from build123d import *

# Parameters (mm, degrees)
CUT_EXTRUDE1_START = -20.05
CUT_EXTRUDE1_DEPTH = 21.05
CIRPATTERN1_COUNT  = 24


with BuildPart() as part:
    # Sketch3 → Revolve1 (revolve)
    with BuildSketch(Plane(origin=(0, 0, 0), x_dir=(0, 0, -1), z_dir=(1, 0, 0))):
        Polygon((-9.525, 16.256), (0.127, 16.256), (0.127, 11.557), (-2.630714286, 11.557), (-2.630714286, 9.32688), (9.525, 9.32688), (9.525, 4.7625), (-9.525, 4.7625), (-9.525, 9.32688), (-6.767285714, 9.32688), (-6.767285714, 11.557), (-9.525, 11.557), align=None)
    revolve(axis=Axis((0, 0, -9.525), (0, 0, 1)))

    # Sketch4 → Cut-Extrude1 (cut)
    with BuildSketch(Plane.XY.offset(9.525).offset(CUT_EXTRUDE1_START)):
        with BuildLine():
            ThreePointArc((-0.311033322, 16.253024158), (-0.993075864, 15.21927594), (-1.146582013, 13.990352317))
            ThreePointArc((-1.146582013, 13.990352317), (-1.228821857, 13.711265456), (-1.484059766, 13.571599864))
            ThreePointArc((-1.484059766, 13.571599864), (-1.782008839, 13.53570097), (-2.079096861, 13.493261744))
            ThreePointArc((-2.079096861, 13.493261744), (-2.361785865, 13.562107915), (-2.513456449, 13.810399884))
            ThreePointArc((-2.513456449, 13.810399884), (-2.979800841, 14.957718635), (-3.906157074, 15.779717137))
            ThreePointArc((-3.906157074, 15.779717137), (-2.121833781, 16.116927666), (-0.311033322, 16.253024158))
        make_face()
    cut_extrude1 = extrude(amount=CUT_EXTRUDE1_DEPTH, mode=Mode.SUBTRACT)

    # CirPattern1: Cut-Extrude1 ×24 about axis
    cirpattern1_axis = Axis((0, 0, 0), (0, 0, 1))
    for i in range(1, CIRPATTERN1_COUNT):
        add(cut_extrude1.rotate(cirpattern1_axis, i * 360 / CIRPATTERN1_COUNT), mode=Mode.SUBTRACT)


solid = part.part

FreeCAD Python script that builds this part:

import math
import FreeCAD as App
import Part
import Sketcher
from FreeCAD import Vector
Q = App.Units.Quantity


def add_polygon(sketch, points):
    """Adds a closed chain of lines whose ends are joined by coincident constraints."""
    first, n = sketch.GeometryCount, len(points)
    for a, b in zip(points, points[1:] + points[:1]):
        sketch.addGeometry(Part.LineSegment(App.Vector(*a, 0), App.Vector(*b, 0)), False)
    for i in range(n):
        sketch.addConstraint(Sketcher.Constraint("Coincident", first + i, 2, first + (i + 1) % n, 1))

doc = App.newDocument("Part")
body = doc.addObject("PartDesign::Body", "Body")

# Sketch on YZ plane
sketch1 = body.newObject("Sketcher::SketchObject", "Sketch")
sketch1.AttachmentSupport = (doc.getObject("YZ_Plane"), [""])
sketch1.MapMode = "FlatFace"
add_polygon(sketch1, [(16.256, -0.127), (16.256, 9.525), (11.557, 9.525), (11.557, 6.767286), (9.32688, 6.767286), (9.32688, 9.525), (4.7625, 9.525), (4.7625, -9.525), (9.32688, -9.525), (9.32688, 2.630714), (11.557, 2.630714), (11.557, -0.127)])  # lines 0-11
sketch1.addConstraint(Sketcher.Constraint("Vertical", 0))
sketch1.addConstraint(Sketcher.Constraint("Horizontal", 1))
sketch1.addConstraint(Sketcher.Constraint("Vertical", 2))
sketch1.addConstraint(Sketcher.Constraint("Horizontal", 3))
sketch1.addConstraint(Sketcher.Constraint("Vertical", 4))
sketch1.addConstraint(Sketcher.Constraint("Horizontal", 5))
sketch1.addConstraint(Sketcher.Constraint("Vertical", 6))
sketch1.addConstraint(Sketcher.Constraint("Horizontal", 7))
sketch1.addConstraint(Sketcher.Constraint("Vertical", 8))
sketch1.addConstraint(Sketcher.Constraint("Horizontal", 9))
sketch1.addConstraint(Sketcher.Constraint("Vertical", 10))
sketch1.addConstraint(Sketcher.Constraint("Horizontal", 11))
sketch1.addConstraint(Sketcher.Constraint("Symmetric", 4, 2, 7, 2, -1))
sketch1.addConstraint(Sketcher.Constraint("Horizontal", 1, 2, 4, 2))
sketch1.addConstraint(Sketcher.Constraint("Vertical", 2, 2, 9, 2))
sketch1.addConstraint(Sketcher.Constraint("Equal", 4, 10))
sketch1.addConstraint(Sketcher.Constraint("DistanceY", 0, 1, 0, 2, Q("0.38 in")))
sketch1.addConstraint(Sketcher.Constraint("DistanceY", 6, 2, 6, 1, Q("0.75 in")))
sketch1.addConstraint(Sketcher.Constraint("DistanceX", 1, 2, 1, 1, Q("0.185 in")))
sketch1.addConstraint(Sketcher.Constraint("DistanceX", -1, 1, 0, 2, Q("0.64 in")))
sketch1.addConstraint(Sketcher.Constraint("DistanceX", 3, 2, 3, 1, Q("0.0878 in")))
sketch1.addConstraint(Sketcher.Constraint("DistanceX", 5, 2, 5, 1, Q("0.1797 in")))
sketch1.addConstraint(Sketcher.Constraint("DistanceY", 2, 2, 2, 1, Q("2.757714 mm")))
revolution = body.newObject("PartDesign::Revolution", "Revolution")
revolution.Profile = sketch1
revolution.ReferenceAxis = (sketch1, ["V_Axis"])
revolution.Angle = 360

# Sketch on XY plane
sketch2 = body.newObject("Sketcher::SketchObject", "Sketch001")
sketch2.AttachmentSupport = (doc.getObject("XY_Plane"), [""])
sketch2.MapMode = "FlatFace"
sketch2.AttachmentOffset = App.Placement(Vector(0, 0, -10.525), App.Rotation())
sketch2.addGeometry(Part.ArcOfCircle(Part.Circle(Vector(1.560691, 14.276233, 0), Vector(0, 0, 1), 2.722325), math.radians(133.436178), math.radians(186.027943)), False)
sketch2.addGeometry(Part.ArcOfCircle(Part.Circle(Vector(0, 0, 0), Vector(0, 0, 1), 16.256), math.radians(91.096333), math.radians(103.903667)), False)
sketch2.addGeometry(Part.ArcOfCircle(Part.Circle(Vector(-5.202473, 13.385846, 0), Vector(0, 0, 1), 2.722325), math.radians(8.972057), math.radians(61.563822)), False)
sketch2.addGeometry(Part.ArcOfCircle(Part.Circle(Vector(-2.137118, 13.869818, 0), Vector(0, 0, 1), 0.381), math.radians(-171.027942), math.radians(-81.240521)), False)
sketch2.addGeometry(Part.ArcOfCircle(Part.Circle(Vector(0, 0, 0), Vector(0, 0, 1), 13.6525), math.radians(96.240521), math.radians(98.759479)), False)
sketch2.addGeometry(Part.ArcOfCircle(Part.Circle(Vector(-1.525475, 13.950342, 0), Vector(0, 0, 1), 0.381), math.radians(-83.759479), math.radians(6.027942)), False)
sketch2.addConstraint(Sketcher.Constraint("Coincident", 0, 1, 1, 1))
sketch2.addConstraint(Sketcher.Constraint("Coincident", 1, 2, 2, 2))
sketch2.addConstraint(Sketcher.Constraint("Tangent", 2, 1, 3, 1))
sketch2.addConstraint(Sketcher.Constraint("Tangent", 3, 2, 4, 2))
sketch2.addConstraint(Sketcher.Constraint("Tangent", 4, 1, 5, 1))
sketch2.addConstraint(Sketcher.Constraint("Tangent", 5, 2, 0, 2))
sketch2.addConstraint(Sketcher.Constraint("Coincident", 1, 3, -1, 1))
sketch2.addConstraint(Sketcher.Constraint("Coincident", 4, 3, -1, 1))
sketch2.addConstraint(Sketcher.Constraint("Equal", 0, 2))
sketch2.addConstraint(Sketcher.Constraint("Equal", 3, 5))
sketch2.addConstraint(Sketcher.Constraint("Radius", 1, Q("0.64 in")))
sketch2.addConstraint(Sketcher.Constraint("Radius", 3, Q("0.015 in")))
sketch2.addConstraint(Sketcher.Constraint("Radius", 4, Q("0.5375 in")))
sketch2.addConstraint(Sketcher.Constraint("Radius", 0, Q("2.722325 mm")))
sketch2.addConstraint(Sketcher.Constraint("DistanceY", -1, 1, 2, 1, Q("13.8104 mm")))
sketch2.addConstraint(Sketcher.Constraint("DistanceY", -1, 1, 4, 1, Q("13.5716 mm")))
sketch2.addConstraint(Sketcher.Constraint("DistanceY", 3, 3, 1, 2, Q("1.909899 mm")))
sketch2.addConstraint(Sketcher.Constraint("DistanceX", -1, 1, 0, 3, Q("1.560691 mm")))
pocket1 = body.newObject("PartDesign::Pocket", "Pocket")
pocket1.Profile = sketch2
pocket1.Length = 21.05
pocket1.Reversed = True
doc.recompute()

polarpattern = body.newObject("PartDesign::PolarPattern", "PolarPattern")
polarpattern.Originals = [pocket1]
polarpattern.Axis = (doc.getObject("Z_Axis"), [""])
polarpattern.Angle = 360
polarpattern.Occurrences = 24
body.Tip = polarpattern

doc.recompute()
